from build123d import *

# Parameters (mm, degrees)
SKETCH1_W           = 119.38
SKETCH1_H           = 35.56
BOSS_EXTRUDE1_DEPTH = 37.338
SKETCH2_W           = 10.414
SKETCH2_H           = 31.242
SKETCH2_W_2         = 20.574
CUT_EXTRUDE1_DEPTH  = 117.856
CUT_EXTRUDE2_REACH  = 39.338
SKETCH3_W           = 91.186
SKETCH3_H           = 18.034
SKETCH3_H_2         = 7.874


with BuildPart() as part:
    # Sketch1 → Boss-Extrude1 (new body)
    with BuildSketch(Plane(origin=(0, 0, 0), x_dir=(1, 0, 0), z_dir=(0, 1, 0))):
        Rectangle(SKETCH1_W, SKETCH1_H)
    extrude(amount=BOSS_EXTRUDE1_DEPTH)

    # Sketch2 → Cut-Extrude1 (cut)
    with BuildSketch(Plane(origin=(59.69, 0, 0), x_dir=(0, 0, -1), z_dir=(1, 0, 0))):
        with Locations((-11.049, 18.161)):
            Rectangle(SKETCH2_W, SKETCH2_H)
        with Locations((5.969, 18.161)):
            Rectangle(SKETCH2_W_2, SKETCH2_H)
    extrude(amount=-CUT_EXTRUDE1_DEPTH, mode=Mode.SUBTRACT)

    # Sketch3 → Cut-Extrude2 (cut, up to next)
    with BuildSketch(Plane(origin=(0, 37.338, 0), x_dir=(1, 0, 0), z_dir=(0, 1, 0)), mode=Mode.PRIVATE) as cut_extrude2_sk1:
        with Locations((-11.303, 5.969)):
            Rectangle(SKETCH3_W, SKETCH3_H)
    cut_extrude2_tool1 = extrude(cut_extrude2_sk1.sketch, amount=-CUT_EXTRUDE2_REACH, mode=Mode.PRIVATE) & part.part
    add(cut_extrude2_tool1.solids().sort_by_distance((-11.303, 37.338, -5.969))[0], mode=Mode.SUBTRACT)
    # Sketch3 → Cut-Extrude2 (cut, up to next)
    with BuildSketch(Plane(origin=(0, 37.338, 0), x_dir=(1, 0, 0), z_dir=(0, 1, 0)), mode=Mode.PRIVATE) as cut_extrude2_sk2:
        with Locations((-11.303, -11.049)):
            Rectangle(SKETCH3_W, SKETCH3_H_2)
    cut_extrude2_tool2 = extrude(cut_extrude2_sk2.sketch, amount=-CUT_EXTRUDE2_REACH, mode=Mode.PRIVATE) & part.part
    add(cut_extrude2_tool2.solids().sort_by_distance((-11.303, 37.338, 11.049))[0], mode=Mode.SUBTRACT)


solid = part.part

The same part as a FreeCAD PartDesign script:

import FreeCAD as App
import Part
import Sketcher
from FreeCAD import Vector
Q = App.Units.Quantity

doc = App.newDocument("Part")
params = doc.addObject("Spreadsheet::Sheet", "Params")
for row, (alias, value) in enumerate([
    ("sketch1_width", "4.7 in"),
    ("sketch1_height", "1.4 in"),
    ("pad1_length", "1.47 in"),
    ("sketch2_width", "1.23 in"),
    ("sketch2_height", "0.41 in"),
    ("sketch2_height2", "0.81 in"),
    ("pocket1_length", "4.64 in"),
    ("sketch3_width", "3.59 in"),
    ("sketch3_height", "0.71 in"),
    ("sketch4_width", "3.59 in"),
    ("sketch4_height", "0.31 in"),
], start=1):
    params.set(f"A{row}", alias)
    params.set(f"B{row}", "=" + value)
    params.setAlias(f"B{row}", alias)

body = doc.addObject("PartDesign::Body", "Body")

# Sketch on XZ plane
sketch1 = body.newObject("Sketcher::SketchObject", "Sketch")
sketch1.AttachmentSupport = (doc.getObject("XZ_Plane"), [""])
sketch1.MapMode = "FlatFace"
sketch1.addGeometry(Part.LineSegment(Vector(-59.69, -17.78, 0), Vector(-59.69, 17.78, 0)), False)
sketch1.addGeometry(Part.LineSegment(Vector(-59.69, 17.78, 0), Vector(59.69, 17.78, 0)), False)
sketch1.addGeometry(Part.LineSegment(Vector(59.69, 17.78, 0), Vector(59.69, -17.78, 0)), False)
sketch1.addGeometry(Part.LineSegment(Vector(59.69, -17.78, 0), Vector(-59.69, -17.78, 0)), False)
sketch1.addConstraint(Sketcher.Constraint("Coincident", 0, 2, 1, 1))
sketch1.addConstraint(Sketcher.Constraint("Coincident", 1, 2, 2, 1))
sketch1.addConstraint(Sketcher.Constraint("Coincident", 2, 2, 3, 1))
sketch1.addConstraint(Sketcher.Constraint("Coincident", 3, 2, 0, 1))
sketch1.addConstraint(Sketcher.Constraint("Vertical", 0))
sketch1.addConstraint(Sketcher.Constraint("Horizontal", 1))
sketch1.addConstraint(Sketcher.Constraint("Vertical", 2))
sketch1.addConstraint(Sketcher.Constraint("Horizontal", 3))
sketch1.addConstraint(Sketcher.Constraint("Symmetric", 0, 2, 2, 2, -1, 1))
sketch1.addConstraint(Sketcher.Constraint("DistanceX", 1, 1, 1, 2, Q("4.7 in")))
sketch1.addConstraint(Sketcher.Constraint("DistanceY", 0, 1, 0, 2, Q("1.4 in")))
sketch1.setExpression("Constraints[9]", "Params.sketch1_width")
sketch1.setExpression("Constraints[10]", "Params.sketch1_height")
pad1 = body.newObject("PartDesign::Pad", "Pad")
pad1.Profile = sketch1
pad1.setExpression("Length", "Params.pad1_length")
pad1.Reversed = True

# Sketch on YZ plane
sketch2 = body.newObject("Sketcher::SketchObject", "Sketch001")
sketch2.AttachmentSupport = (doc.getObject("YZ_Plane"), [""])
sketch2.MapMode = "FlatFace"
sketch2.AttachmentOffset = App.Placement(Vector(0, 0, 2.35 * 25.4), App.Rotation())
sketch2.addGeometry(Part.LineSegment(Vector(33.782, 16.256, 0), Vector(2.54, 16.256, 0)), False)
sketch2.addGeometry(Part.LineSegment(Vector(2.54, 16.256, 0), Vector(2.54, 5.842, 0)), False)
sketch2.addGeometry(Part.LineSegment(Vector(2.54, 5.842, 0), Vector(33.782, 5.842, 0)), False)
sketch2.addGeometry(Part.LineSegment(Vector(33.782, 5.842, 0), Vector(33.782, 16.256, 0)), False)
sketch2.addGeometry(Part.LineSegment(Vector(33.782, 4.318, 0), Vector(2.54, 4.318, 0)), False)
sketch2.addGeometry(Part.LineSegment(Vector(2.54, 4.318, 0), Vector(2.54, -16.256, 0)), False)
sketch2.addGeometry(Part.LineSegment(Vector(2.54, -16.256, 0), Vector(33.782, -16.256, 0)), False)
sketch2.addGeometry(Part.LineSegment(Vector(33.782, -16.256, 0), Vector(33.782, 4.318, 0)), False)
sketch2.addConstraint(Sketcher.Constraint("Coincident", 0, 2, 1, 1))
sketch2.addConstraint(Sketcher.Constraint("Coincident", 1, 2, 2, 1))
sketch2.addConstraint(Sketcher.Constraint("Coincident", 2, 2, 3, 1))
sketch2.addConstraint(Sketcher.Constraint("Coincident", 3, 2, 0, 1))
sketch2.addConstraint(Sketcher.Constraint("Coincident", 4, 2, 5, 1))
sketch2.addConstraint(Sketcher.Constraint("Coincident", 5, 2, 6, 1))
sketch2.addConstraint(Sketcher.Constraint("Coincident", 6, 2, 7, 1))
sketch2.addConstraint(Sketcher.Constraint("Coincident", 7, 2, 4, 1))
sketch2.addConstraint(Sketcher.Constraint("Horizontal", 0))
sketch2.addConstraint(Sketcher.Constraint("Vertical", 1))
sketch2.addConstraint(Sketcher.Constraint("Horizontal", 2))
sketch2.addConstraint(Sketcher.Constraint("Vertical", 3))
sketch2.addConstraint(Sketcher.Constraint("Horizontal", 4))
sketch2.addConstraint(Sketcher.Constraint("Vertical", 5))
sketch2.addConstraint(Sketcher.Constraint("Horizontal", 6))
sketch2.addConstraint(Sketcher.Constraint("Vertical", 7))
sketch2.addConstraint(Sketcher.Constraint("Symmetric", 0, 2, 5, 2, -1))
sketch2.addConstraint(Sketcher.Constraint("Vertical", 3, 2, 6, 2))
sketch2.addConstraint(Sketcher.Constraint("DistanceX", 0, 2, 0, 1, Q("1.23 in")))
sketch2.addConstraint(Sketcher.Constraint("DistanceY", 1, 2, 1, 1, Q("0.41 in")))
sketch2.addConstraint(Sketcher.Constraint("DistanceY", 5, 2, 5, 1, Q("0.81 in")))
sketch2.addConstraint(Sketcher.Constraint("DistanceX", -1, 1, 0, 2, Q("0.1 in")))
sketch2.addConstraint(Sketcher.Constraint("DistanceY", -1, 1, 0, 2, Q("0.64 in")))
sketch2.setExpression("Constraints[18]", "Params.sketch2_width")
sketch2.setExpression("Constraints[19]", "Params.sketch2_height")
sketch2.setExpression("Constraints[20]", "Params.sketch2_height2")
pocket1 = body.newObject("PartDesign::Pocket", "Pocket")
pocket1.Profile = sketch2
pocket1.setExpression("Length", "Params.pocket1_length")

# Sketch on XZ plane
sketch3 = body.newObject("Sketcher::SketchObject", "Sketch002")
sketch3.AttachmentSupport = (doc.getObject("XZ_Plane"), [""])
sketch3.MapMode = "FlatFace"
sketch3.AttachmentOffset = App.Placement(Vector(0, 0, -1.47 * 25.4), App.Rotation())
sketch3.addGeometry(Part.LineSegment(Vector(-56.896, -14.986, 0), Vector(-56.896, 3.048, 0)), False)
sketch3.addGeometry(Part.LineSegment(Vector(-56.896, 3.048, 0), Vector(34.29, 3.048, 0)), False)
sketch3.addGeometry(Part.LineSegment(Vector(34.29, 3.048, 0), Vector(34.29, -14.986, 0)), False)
sketch3.addGeometry(Part.LineSegment(Vector(34.29, -14.986, 0), Vector(-56.896, -14.986, 0)), False)
sketch3.addConstraint(Sketcher.Constraint("Coincident", 0, 2, 1, 1))
sketch3.addConstraint(Sketcher.Constraint("Coincident", 1, 2, 2, 1))
sketch3.addConstraint(Sketcher.Constraint("Coincident", 2, 2, 3, 1))
sketch3.addConstraint(Sketcher.Constraint("Coincident", 3, 2, 0, 1))
sketch3.addConstraint(Sketcher.Constraint("Vertical", 0))
sketch3.addConstraint(Sketcher.Constraint("Horizontal", 1))
sketch3.addConstraint(Sketcher.Constraint("Vertical", 2))
sketch3.addConstraint(Sketcher.Constraint("Horizontal", 3))
sketch3.addConstraint(Sketcher.Constraint("DistanceX", 1, 1, 1, 2, Q("3.59 in")))
sketch3.addConstraint(Sketcher.Constraint("DistanceY", 0, 1, 0, 2, Q("0.71 in")))
sketch3.addConstraint(Sketcher.Constraint("DistanceX", 0, 2, -1, 1, Q("2.24 in")))
sketch3.addConstraint(Sketcher.Constraint("DistanceY", -1, 1, 0, 2, Q("0.12 in")))
sketch3.setExpression("Constraints[8]", "Params.sketch3_width")
sketch3.setExpression("Constraints[9]", "Params.sketch3_height")
pocket2 = body.newObject("PartDesign::Pocket", "Pocket001")
pocket2.Profile = sketch3
pocket2.Type = "UpToFirst"
pocket2.Reversed = True

# Sketch on XZ plane
sketch4 = body.newObject("Sketcher::SketchObject", "Sketch003")
sketch4.AttachmentSupport = (doc.getObject("XZ_Plane"), [""])
sketch4.MapMode = "FlatFace"
sketch4.AttachmentOffset = App.Placement(Vector(0, 0, -1.47 * 25.4), App.Rotation())
sketch4.addGeometry(Part.LineSegment(Vector(-56.896, 7.112, 0), Vector(-56.896, 14.986, 0)), False)
sketch4.addGeometry(Part.LineSegment(Vector(-56.896, 14.986, 0), Vector(34.29, 14.986, 0)), False)
sketch4.addGeometry(Part.LineSegment(Vector(34.29, 14.986, 0), Vector(34.29, 7.112, 0)), False)
sketch4.addGeometry(Part.LineSegment(Vector(34.29, 7.112, 0), Vector(-56.896, 7.112, 0)), False)
sketch4.addConstraint(Sketcher.Constraint("Coincident", 0, 2, 1, 1))
sketch4.addConstraint(Sketcher.Constraint("Coincident", 1, 2, 2, 1))
sketch4.addConstraint(Sketcher.Constraint("Coincident", 2, 2, 3, 1))
sketch4.addConstraint(Sketcher.Constraint("Coincident", 3, 2, 0, 1))
sketch4.addConstraint(Sketcher.Constraint("Vertical", 0))
sketch4.addConstraint(Sketcher.Constraint("Horizontal", 1))
sketch4.addConstraint(Sketcher.Constraint("Vertical", 2))
sketch4.addConstraint(Sketcher.Constraint("Horizontal", 3))
sketch4.addConstraint(Sketcher.Constraint("DistanceX", 1, 1, 1, 2, Q("3.59 in")))
sketch4.addConstraint(Sketcher.Constraint("DistanceY", 0, 1, 0, 2, Q("0.31 in")))
sketch4.addConstraint(Sketcher.Constraint("DistanceX", 0, 2, -1, 1, Q("2.24 in")))
sketch4.addConstraint(Sketcher.Constraint("DistanceY", -1, 1, 0, 2, Q("0.59 in")))
sketch4.setExpression("Constraints[8]", "Params.sketch4_width")
sketch4.setExpression("Constraints[9]", "Params.sketch4_height")
pocket3 = body.newObject("PartDesign::Pocket", "Pocket002")
pocket3.Profile = sketch4
pocket3.Type = "UpToFirst"
pocket3.Reversed = True

doc.recompute()
